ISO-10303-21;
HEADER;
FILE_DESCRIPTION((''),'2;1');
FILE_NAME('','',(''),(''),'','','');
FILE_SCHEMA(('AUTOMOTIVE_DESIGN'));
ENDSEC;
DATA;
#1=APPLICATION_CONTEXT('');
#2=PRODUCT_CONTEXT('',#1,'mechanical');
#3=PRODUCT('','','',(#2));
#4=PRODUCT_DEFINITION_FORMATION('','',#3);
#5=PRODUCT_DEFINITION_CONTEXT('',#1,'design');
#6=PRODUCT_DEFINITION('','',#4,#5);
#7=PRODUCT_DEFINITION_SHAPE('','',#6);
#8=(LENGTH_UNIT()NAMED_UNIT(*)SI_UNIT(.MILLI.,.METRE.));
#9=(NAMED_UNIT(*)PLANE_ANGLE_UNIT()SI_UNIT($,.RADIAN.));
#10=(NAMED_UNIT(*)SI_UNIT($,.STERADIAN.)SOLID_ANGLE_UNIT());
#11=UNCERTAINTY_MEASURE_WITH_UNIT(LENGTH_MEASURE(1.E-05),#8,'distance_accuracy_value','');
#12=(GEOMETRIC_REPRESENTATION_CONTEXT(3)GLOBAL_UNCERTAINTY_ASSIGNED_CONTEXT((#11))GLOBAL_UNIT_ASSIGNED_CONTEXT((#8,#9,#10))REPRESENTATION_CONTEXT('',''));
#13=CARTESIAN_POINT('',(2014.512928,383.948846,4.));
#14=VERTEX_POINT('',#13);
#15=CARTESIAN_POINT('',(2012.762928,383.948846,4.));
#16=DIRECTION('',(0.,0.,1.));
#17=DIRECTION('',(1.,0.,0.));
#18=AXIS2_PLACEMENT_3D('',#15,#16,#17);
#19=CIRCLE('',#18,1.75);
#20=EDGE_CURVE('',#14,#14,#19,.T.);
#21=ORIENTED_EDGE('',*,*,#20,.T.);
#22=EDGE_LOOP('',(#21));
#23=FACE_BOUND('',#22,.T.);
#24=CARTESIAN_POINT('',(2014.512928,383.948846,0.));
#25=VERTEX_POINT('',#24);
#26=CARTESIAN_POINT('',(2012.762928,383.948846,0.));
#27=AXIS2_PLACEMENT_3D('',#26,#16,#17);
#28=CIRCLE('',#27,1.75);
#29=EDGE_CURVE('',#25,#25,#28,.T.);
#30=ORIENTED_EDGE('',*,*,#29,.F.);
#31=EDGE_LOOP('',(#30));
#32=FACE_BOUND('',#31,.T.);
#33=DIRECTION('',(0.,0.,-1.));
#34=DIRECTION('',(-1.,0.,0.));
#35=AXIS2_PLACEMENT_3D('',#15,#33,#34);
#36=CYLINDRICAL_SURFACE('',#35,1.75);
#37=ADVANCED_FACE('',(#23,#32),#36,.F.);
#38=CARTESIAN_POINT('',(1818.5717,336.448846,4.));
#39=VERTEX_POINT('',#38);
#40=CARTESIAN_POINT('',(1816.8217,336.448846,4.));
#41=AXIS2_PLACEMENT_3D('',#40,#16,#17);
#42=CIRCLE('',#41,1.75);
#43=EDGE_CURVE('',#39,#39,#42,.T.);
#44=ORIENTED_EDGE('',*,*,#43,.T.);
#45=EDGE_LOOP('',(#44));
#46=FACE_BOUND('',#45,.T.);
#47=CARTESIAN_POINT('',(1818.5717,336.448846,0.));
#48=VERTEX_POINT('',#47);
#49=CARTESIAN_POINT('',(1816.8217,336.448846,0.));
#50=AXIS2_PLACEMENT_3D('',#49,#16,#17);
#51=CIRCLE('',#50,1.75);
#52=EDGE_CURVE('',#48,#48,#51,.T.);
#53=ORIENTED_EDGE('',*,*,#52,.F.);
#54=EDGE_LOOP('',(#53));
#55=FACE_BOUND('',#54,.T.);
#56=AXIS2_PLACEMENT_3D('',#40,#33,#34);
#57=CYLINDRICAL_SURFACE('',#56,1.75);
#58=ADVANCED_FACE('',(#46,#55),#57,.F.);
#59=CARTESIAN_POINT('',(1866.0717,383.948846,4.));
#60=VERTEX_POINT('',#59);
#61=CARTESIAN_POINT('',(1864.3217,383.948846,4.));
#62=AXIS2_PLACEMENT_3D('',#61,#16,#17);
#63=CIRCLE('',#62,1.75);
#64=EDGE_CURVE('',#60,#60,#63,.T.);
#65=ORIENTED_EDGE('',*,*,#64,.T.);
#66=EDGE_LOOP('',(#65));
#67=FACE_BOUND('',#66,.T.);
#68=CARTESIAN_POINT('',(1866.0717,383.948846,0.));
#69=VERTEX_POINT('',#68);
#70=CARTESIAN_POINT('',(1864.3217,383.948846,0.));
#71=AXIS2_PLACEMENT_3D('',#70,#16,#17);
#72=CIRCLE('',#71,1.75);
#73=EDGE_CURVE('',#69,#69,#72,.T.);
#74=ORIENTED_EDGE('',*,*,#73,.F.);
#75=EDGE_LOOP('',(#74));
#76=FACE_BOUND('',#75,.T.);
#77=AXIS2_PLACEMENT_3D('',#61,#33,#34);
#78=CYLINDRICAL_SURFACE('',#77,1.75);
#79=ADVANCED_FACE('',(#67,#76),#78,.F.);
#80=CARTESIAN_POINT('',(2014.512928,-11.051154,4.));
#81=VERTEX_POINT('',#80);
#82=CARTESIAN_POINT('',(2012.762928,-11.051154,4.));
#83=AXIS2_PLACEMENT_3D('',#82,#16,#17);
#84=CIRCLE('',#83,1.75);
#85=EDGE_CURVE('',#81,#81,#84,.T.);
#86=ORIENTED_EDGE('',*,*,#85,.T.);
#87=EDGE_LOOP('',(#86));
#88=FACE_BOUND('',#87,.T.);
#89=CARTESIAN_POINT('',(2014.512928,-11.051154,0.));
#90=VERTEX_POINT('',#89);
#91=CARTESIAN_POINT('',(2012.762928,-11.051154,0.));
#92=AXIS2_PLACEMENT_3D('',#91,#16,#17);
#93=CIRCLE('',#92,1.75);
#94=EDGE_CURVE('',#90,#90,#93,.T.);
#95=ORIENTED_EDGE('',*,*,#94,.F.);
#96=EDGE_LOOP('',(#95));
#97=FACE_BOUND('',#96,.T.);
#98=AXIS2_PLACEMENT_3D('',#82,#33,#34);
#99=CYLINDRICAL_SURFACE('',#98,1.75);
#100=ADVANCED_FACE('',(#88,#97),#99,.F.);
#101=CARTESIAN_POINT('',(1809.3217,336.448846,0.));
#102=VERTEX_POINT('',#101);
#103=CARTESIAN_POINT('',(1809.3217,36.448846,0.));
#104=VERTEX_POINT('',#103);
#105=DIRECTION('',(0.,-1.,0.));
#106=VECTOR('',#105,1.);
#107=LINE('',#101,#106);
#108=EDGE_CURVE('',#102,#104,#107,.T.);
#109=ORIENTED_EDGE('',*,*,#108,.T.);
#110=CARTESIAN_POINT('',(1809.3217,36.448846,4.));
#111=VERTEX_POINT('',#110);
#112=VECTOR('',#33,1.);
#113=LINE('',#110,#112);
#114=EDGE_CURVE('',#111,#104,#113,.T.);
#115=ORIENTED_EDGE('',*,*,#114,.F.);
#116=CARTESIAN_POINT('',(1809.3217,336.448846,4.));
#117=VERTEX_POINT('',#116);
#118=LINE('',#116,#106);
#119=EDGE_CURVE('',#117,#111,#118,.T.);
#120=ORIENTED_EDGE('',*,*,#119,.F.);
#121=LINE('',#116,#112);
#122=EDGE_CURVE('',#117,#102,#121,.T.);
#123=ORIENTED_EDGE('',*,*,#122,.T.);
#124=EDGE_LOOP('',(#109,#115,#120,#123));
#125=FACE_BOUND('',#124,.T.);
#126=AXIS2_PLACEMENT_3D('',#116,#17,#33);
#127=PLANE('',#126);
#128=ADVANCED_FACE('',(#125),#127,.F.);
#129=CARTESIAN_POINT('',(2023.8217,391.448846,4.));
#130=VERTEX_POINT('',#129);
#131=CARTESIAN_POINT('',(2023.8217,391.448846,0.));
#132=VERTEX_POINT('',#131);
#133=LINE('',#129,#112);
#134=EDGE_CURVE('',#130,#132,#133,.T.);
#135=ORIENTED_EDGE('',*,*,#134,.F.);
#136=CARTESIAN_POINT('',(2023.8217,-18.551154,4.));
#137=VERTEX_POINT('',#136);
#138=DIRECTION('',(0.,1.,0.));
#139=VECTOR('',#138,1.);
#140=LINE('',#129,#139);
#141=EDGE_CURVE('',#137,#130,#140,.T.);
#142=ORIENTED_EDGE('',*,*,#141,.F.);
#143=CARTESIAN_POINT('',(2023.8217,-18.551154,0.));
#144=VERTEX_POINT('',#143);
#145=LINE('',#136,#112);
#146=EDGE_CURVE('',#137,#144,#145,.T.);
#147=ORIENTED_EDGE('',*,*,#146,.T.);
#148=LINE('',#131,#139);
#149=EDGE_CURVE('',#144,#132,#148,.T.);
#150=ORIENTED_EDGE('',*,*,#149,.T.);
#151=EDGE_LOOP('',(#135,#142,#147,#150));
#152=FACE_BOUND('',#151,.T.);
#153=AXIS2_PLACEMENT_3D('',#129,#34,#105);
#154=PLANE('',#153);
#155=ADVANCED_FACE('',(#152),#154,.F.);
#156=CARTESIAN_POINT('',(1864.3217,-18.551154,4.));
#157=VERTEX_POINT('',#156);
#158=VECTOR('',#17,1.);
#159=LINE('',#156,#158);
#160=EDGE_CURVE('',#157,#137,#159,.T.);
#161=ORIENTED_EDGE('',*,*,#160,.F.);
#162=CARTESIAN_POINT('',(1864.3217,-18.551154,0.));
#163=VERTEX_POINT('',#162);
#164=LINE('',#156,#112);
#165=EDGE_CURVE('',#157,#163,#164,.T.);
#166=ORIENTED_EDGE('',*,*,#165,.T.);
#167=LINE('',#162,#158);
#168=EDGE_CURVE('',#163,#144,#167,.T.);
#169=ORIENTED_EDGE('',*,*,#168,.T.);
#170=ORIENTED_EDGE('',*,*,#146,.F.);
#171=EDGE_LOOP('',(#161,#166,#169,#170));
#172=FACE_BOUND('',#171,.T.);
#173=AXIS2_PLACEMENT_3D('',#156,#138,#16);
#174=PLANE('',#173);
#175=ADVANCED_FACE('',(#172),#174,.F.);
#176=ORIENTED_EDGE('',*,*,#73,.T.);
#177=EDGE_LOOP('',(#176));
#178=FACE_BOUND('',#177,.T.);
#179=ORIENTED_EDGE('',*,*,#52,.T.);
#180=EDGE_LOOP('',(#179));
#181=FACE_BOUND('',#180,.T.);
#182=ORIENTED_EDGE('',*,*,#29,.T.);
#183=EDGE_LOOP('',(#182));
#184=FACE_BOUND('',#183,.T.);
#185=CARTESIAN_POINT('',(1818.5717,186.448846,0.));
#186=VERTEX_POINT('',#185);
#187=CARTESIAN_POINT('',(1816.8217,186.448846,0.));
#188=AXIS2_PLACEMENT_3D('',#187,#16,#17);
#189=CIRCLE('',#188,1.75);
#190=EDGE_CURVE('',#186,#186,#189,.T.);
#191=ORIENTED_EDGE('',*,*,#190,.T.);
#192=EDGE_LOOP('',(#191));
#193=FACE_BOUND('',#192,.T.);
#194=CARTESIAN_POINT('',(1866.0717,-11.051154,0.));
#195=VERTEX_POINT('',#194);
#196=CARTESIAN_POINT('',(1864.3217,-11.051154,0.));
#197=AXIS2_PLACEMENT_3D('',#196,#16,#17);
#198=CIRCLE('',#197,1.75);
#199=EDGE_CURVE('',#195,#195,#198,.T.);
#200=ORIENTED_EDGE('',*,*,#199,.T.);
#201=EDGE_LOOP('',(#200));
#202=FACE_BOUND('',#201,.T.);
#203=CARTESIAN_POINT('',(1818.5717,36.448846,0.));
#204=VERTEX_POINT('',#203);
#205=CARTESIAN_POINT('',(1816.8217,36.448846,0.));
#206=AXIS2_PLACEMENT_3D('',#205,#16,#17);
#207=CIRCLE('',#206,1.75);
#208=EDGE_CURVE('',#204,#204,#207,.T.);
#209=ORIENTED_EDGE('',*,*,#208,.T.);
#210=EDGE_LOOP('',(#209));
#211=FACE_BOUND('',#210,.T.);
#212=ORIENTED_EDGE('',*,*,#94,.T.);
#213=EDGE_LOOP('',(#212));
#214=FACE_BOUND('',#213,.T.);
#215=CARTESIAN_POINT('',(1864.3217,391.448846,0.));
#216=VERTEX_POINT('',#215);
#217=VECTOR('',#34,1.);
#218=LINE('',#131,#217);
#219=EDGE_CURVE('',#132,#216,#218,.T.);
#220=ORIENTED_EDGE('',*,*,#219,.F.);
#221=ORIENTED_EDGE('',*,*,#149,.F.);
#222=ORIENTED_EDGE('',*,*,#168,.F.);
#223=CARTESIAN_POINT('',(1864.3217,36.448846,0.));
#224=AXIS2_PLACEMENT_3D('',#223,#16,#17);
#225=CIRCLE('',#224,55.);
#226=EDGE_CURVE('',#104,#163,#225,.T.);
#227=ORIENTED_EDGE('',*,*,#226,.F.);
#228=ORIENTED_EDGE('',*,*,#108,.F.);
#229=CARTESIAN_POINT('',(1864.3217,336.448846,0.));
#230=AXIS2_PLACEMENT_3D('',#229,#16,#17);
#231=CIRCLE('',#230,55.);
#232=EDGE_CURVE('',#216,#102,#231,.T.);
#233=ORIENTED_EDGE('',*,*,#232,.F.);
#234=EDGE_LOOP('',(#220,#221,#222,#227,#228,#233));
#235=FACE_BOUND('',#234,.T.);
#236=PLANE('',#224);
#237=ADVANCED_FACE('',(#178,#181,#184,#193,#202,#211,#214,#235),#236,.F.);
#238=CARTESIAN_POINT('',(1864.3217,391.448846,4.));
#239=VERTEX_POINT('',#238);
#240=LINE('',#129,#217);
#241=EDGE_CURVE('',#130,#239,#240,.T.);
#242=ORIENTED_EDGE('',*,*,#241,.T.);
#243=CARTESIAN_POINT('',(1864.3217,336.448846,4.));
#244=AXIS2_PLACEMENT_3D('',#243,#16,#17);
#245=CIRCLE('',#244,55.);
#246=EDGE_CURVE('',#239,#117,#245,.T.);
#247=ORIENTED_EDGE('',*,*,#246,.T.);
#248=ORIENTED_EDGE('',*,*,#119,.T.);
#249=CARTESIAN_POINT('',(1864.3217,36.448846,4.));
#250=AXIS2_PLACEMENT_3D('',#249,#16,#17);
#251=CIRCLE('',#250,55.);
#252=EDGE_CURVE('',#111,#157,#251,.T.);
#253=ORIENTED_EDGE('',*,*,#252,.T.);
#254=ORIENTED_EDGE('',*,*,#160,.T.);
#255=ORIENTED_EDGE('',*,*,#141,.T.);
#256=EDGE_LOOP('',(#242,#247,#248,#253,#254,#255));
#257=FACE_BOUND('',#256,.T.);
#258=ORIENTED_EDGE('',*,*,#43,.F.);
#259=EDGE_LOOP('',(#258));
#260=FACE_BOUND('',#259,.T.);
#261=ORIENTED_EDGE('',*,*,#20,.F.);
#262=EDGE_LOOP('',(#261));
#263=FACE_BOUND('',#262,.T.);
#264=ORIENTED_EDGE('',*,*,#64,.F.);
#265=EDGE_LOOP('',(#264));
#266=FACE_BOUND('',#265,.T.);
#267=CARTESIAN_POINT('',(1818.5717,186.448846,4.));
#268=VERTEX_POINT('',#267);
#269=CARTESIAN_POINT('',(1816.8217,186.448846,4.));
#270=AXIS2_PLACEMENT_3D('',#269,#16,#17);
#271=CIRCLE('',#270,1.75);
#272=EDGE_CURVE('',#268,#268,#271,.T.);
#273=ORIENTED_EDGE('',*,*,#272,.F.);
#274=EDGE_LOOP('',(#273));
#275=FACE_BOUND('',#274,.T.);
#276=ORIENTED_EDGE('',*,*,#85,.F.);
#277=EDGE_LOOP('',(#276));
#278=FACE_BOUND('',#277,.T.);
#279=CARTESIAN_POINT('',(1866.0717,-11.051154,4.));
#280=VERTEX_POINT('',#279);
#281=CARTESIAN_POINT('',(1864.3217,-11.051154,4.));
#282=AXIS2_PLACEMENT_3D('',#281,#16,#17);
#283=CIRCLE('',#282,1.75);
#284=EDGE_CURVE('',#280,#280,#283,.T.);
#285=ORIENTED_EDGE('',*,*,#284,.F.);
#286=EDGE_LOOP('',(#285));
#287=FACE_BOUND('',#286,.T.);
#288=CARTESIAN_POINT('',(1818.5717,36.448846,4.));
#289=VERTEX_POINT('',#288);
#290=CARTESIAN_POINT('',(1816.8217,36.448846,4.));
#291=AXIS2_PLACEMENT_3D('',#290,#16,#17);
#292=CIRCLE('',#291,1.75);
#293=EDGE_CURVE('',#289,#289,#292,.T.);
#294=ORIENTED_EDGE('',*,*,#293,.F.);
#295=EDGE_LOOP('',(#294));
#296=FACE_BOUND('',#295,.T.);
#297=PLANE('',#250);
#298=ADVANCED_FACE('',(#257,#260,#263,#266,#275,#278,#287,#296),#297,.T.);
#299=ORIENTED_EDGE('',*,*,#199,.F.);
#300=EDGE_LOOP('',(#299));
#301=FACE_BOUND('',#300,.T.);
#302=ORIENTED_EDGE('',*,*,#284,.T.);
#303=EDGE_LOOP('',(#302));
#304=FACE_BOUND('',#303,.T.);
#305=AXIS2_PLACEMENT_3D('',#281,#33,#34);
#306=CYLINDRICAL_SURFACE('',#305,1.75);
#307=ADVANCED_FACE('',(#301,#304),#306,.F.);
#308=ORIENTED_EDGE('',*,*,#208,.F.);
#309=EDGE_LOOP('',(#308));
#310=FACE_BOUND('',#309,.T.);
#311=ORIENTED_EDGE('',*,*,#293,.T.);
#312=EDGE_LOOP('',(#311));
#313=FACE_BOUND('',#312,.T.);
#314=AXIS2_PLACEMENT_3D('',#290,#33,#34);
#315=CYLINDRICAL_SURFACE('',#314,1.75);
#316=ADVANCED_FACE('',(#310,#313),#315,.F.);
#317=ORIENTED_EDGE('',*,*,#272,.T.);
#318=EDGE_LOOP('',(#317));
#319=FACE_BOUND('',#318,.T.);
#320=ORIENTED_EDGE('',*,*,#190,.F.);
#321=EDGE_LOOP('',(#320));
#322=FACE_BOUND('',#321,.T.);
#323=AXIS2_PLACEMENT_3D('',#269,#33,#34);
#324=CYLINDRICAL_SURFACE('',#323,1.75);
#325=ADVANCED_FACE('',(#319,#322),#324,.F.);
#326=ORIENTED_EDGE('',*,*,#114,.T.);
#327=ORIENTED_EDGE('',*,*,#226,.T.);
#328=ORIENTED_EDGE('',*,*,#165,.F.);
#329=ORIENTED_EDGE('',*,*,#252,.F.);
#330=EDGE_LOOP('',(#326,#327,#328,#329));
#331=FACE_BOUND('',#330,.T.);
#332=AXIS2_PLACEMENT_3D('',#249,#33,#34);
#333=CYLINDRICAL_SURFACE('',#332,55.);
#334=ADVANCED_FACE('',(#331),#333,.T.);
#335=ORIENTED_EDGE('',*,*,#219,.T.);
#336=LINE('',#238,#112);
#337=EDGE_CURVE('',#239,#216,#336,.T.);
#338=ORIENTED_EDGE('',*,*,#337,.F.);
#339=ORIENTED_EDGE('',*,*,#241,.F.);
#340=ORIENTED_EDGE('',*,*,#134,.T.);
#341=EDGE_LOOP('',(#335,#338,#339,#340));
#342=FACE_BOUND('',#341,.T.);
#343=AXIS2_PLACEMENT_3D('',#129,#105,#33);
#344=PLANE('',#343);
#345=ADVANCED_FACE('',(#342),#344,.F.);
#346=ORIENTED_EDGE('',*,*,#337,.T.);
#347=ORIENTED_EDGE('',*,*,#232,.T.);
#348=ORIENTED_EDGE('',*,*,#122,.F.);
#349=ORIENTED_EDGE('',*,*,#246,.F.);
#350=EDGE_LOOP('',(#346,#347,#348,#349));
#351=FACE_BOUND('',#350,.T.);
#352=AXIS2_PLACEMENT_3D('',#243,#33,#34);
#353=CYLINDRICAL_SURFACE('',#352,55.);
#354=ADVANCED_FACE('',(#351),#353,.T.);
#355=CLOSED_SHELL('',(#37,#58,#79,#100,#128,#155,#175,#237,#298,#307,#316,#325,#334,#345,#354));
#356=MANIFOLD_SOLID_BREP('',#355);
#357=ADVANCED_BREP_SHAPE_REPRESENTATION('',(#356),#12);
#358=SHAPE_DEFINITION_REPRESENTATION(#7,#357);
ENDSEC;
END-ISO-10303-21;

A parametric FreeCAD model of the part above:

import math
import FreeCAD as App
import Part
import Sketcher
from FreeCAD import Vector
Q = App.Units.Quantity

doc = App.newDocument("Part")
body = doc.addObject("PartDesign::Body", "Body")

sketch1 = body.newObject("Sketcher::SketchObject", "Sketch")
sketch1.AttachmentSupport = (doc.getObject("XY_Plane"), [""])
sketch1.MapMode = "FlatFace"
sketch1.addGeometry([
    Part.LineSegment(Vector(2023.8217, -18.551154, 0), Vector(2023.8217, 391.448846, 0)),
    Part.LineSegment(Vector(2023.8217, 391.448846, 0), Vector(1864.3217, 391.448846, 0)),
    Part.ArcOfCircle(Part.Circle(Vector(1864.3217, 336.448846, 0), Vector(0, 0, 1), 55), math.radians(90), math.radians(180)),
    Part.LineSegment(Vector(1809.3217, 336.448846, 0), Vector(1809.3217, 36.448846, 0)),
    Part.ArcOfCircle(Part.Circle(Vector(1864.3217, 36.448846, 0), Vector(0, 0, 1), 55), math.radians(-180), math.radians(-90)),
    Part.LineSegment(Vector(1864.3217, -18.551154, 0), Vector(2023.8217, -18.551154, 0)),
    Part.Circle(Vector(2012.762928, -11.051154, 0), Vector(0, 0, 1), 1.75),
    Part.Circle(Vector(1864.3217, -11.051154, 0), Vector(0, 0, 1), 1.75),
    Part.Circle(Vector(1816.8217, 36.448846, 0), Vector(0, 0, 1), 1.75),
    Part.Circle(Vector(1816.8217, 186.448846, 0), Vector(0, 0, 1), 1.75),
    Part.Circle(Vector(2012.762928, 383.948846, 0), Vector(0, 0, 1), 1.75),
    Part.Circle(Vector(1864.3217, 383.948846, 0), Vector(0, 0, 1), 1.75),
    Part.Circle(Vector(1816.8217, 336.448846, 0), Vector(0, 0, 1), 1.75),
], False)
sketch1.addConstraint([
    Sketcher.Constraint("Coincident", 0, 2, 1, 1),
    Sketcher.Constraint("Tangent", 1, 2, 2, 1),
    Sketcher.Constraint("Tangent", 2, 2, 3, 1),
    Sketcher.Constraint("Tangent", 3, 2, 4, 1),
    Sketcher.Constraint("Tangent", 4, 2, 5, 1),
    Sketcher.Constraint("Coincident", 5, 2, 0, 1),
    Sketcher.Constraint("Vertical", 0),
    Sketcher.Constraint("Horizontal", 1),
    Sketcher.Constraint("Vertical", 3),
    Sketcher.Constraint("Horizontal", 5),
    Sketcher.Constraint("Equal", 2, 4),
    Sketcher.Constraint("Equal", 6, 7),
    Sketcher.Constraint("Equal", 7, 8),
    Sketcher.Constraint("Equal", 8, 9),
    Sketcher.Constraint("Equal", 9, 10),
    Sketcher.Constraint("Equal", 10, 11),
    Sketcher.Constraint("Equal", 11, 12),
    Sketcher.Constraint("Horizontal", 6, 3, 7, 3),
    Sketcher.Constraint("Horizontal", 4, 3, 8, 3),
    Sketcher.Constraint("Horizontal", 10, 3, 11, 3),
    Sketcher.Constraint("Horizontal", 2, 3, 12, 3),
    Sketcher.Constraint("Vertical", 4, 3, 7, 3),
    Sketcher.Constraint("Vertical", 8, 3, 9, 3),
    Sketcher.Constraint("Vertical", 6, 3, 10, 3),
    Sketcher.Constraint("Vertical", 7, 3, 11, 3),
    Sketcher.Constraint("Vertical", 9, 3, 12, 3),
    Sketcher.Constraint("Radius", 2, Q("55 mm")),
    Sketcher.Constraint("Diameter", 6, Q("3.5 mm")),
    Sketcher.Constraint("DistanceY", 0, 1, 0, 2, Q("410 mm")),
    Sketcher.Constraint("DistanceX", 1, 2, 1, 1, Q("159.5 mm")),
    Sketcher.Constraint("DistanceY", 8, 3, 9, 3, Q("150 mm")),
    Sketcher.Constraint("DistanceY", 6, 3, 10, 3, Q("395 mm")),
    Sketcher.Constraint("DistanceX", 12, 3, 0, 2, Q("207 mm")),
    Sketcher.Constraint("DistanceY", 6, 3, 4, 3, Q("47.5 mm")),
    Sketcher.Constraint("DistanceX", -1, 1, 2, 3, Q("1864.3217 mm")),
    Sketcher.Constraint("DistanceX", 4, 3, 6, 3, Q("148.441228 mm")),
    Sketcher.Constraint("DistanceY", -1, 1, 2, 3, Q("336.448846 mm")),
])
pad1 = body.newObject("PartDesign::Pad", "Pad")
pad1.Profile = sketch1
pad1.Length = 4

doc.recompute()
